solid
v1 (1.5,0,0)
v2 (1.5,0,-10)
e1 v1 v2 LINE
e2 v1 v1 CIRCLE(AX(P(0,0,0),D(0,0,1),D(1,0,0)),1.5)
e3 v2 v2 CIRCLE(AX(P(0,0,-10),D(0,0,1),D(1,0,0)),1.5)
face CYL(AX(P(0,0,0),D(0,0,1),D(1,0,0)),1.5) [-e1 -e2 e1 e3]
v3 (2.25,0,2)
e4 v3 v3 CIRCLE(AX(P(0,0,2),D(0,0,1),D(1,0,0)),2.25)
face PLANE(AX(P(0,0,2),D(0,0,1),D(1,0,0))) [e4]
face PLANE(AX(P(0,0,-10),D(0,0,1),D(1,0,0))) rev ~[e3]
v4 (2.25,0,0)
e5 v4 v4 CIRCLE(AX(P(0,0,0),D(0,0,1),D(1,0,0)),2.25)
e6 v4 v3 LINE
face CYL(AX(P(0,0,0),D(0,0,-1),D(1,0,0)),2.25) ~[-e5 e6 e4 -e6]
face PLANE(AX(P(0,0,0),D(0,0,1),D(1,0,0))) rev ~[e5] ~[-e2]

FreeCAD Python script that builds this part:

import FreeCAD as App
import Part
import Sketcher
Q = App.Units.Quantity

doc = App.newDocument("Part")
params = doc.addObject("Spreadsheet::Sheet", "Params")
for row, (alias, value) in enumerate([
    ("sketch1_diameter", "4.5 mm"),
    ("pad1_length", "2 mm"),
    ("sketch2_diameter", "3 mm"),
    ("pad2_length", "10 mm"),
], start=1):
    params.set(f"A{row}", alias)
    params.set(f"B{row}", "=" + value)
    params.setAlias(f"B{row}", alias)

body = doc.addObject("PartDesign::Body", "Body")

sketch1 = body.newObject("Sketcher::SketchObject", "Sketch")
sketch1.AttachmentSupport = (doc.getObject("XY_Plane"), [""])
sketch1.MapMode = "FlatFace"
sketch1.addGeometry(Part.Circle(App.Vector(0, 0, 0), App.Vector(0, 0, 1), 2.2), False)
sketch1.addConstraint(Sketcher.Constraint("Coincident", 0, 3, -1, 1))
sketch1.addConstraint(Sketcher.Constraint("Diameter", 0, Q("4.5 mm")))
sketch1.setExpression("Constraints[1]", "Params.sketch1_diameter")
pad1 = body.newObject("PartDesign::Pad", "Pad")
pad1.Profile = sketch1
pad1.setExpression("Length", "Params.pad1_length")

sketch2 = body.newObject("Sketcher::SketchObject", "Sketch001")
sketch2.AttachmentSupport = (doc.getObject("XY_Plane"), [""])
sketch2.MapMode = "FlatFace"
sketch2.addGeometry(Part.Circle(App.Vector(0, 0, 0), App.Vector(0, 0, 1), 1.5), False)
sketch2.addConstraint(Sketcher.Constraint("Coincident", 0, 3, -1, 1))
sketch2.addConstraint(Sketcher.Constraint("Diameter", 0, Q("3 mm")))
sketch2.setExpression("Constraints[1]", "Params.sketch2_diameter")
pad2 = body.newObject("PartDesign::Pad", "Pad001")
pad2.Profile = sketch2
pad2.setExpression("Length", "Params.pad2_length")
pad2.Reversed = True

doc.recompute()
